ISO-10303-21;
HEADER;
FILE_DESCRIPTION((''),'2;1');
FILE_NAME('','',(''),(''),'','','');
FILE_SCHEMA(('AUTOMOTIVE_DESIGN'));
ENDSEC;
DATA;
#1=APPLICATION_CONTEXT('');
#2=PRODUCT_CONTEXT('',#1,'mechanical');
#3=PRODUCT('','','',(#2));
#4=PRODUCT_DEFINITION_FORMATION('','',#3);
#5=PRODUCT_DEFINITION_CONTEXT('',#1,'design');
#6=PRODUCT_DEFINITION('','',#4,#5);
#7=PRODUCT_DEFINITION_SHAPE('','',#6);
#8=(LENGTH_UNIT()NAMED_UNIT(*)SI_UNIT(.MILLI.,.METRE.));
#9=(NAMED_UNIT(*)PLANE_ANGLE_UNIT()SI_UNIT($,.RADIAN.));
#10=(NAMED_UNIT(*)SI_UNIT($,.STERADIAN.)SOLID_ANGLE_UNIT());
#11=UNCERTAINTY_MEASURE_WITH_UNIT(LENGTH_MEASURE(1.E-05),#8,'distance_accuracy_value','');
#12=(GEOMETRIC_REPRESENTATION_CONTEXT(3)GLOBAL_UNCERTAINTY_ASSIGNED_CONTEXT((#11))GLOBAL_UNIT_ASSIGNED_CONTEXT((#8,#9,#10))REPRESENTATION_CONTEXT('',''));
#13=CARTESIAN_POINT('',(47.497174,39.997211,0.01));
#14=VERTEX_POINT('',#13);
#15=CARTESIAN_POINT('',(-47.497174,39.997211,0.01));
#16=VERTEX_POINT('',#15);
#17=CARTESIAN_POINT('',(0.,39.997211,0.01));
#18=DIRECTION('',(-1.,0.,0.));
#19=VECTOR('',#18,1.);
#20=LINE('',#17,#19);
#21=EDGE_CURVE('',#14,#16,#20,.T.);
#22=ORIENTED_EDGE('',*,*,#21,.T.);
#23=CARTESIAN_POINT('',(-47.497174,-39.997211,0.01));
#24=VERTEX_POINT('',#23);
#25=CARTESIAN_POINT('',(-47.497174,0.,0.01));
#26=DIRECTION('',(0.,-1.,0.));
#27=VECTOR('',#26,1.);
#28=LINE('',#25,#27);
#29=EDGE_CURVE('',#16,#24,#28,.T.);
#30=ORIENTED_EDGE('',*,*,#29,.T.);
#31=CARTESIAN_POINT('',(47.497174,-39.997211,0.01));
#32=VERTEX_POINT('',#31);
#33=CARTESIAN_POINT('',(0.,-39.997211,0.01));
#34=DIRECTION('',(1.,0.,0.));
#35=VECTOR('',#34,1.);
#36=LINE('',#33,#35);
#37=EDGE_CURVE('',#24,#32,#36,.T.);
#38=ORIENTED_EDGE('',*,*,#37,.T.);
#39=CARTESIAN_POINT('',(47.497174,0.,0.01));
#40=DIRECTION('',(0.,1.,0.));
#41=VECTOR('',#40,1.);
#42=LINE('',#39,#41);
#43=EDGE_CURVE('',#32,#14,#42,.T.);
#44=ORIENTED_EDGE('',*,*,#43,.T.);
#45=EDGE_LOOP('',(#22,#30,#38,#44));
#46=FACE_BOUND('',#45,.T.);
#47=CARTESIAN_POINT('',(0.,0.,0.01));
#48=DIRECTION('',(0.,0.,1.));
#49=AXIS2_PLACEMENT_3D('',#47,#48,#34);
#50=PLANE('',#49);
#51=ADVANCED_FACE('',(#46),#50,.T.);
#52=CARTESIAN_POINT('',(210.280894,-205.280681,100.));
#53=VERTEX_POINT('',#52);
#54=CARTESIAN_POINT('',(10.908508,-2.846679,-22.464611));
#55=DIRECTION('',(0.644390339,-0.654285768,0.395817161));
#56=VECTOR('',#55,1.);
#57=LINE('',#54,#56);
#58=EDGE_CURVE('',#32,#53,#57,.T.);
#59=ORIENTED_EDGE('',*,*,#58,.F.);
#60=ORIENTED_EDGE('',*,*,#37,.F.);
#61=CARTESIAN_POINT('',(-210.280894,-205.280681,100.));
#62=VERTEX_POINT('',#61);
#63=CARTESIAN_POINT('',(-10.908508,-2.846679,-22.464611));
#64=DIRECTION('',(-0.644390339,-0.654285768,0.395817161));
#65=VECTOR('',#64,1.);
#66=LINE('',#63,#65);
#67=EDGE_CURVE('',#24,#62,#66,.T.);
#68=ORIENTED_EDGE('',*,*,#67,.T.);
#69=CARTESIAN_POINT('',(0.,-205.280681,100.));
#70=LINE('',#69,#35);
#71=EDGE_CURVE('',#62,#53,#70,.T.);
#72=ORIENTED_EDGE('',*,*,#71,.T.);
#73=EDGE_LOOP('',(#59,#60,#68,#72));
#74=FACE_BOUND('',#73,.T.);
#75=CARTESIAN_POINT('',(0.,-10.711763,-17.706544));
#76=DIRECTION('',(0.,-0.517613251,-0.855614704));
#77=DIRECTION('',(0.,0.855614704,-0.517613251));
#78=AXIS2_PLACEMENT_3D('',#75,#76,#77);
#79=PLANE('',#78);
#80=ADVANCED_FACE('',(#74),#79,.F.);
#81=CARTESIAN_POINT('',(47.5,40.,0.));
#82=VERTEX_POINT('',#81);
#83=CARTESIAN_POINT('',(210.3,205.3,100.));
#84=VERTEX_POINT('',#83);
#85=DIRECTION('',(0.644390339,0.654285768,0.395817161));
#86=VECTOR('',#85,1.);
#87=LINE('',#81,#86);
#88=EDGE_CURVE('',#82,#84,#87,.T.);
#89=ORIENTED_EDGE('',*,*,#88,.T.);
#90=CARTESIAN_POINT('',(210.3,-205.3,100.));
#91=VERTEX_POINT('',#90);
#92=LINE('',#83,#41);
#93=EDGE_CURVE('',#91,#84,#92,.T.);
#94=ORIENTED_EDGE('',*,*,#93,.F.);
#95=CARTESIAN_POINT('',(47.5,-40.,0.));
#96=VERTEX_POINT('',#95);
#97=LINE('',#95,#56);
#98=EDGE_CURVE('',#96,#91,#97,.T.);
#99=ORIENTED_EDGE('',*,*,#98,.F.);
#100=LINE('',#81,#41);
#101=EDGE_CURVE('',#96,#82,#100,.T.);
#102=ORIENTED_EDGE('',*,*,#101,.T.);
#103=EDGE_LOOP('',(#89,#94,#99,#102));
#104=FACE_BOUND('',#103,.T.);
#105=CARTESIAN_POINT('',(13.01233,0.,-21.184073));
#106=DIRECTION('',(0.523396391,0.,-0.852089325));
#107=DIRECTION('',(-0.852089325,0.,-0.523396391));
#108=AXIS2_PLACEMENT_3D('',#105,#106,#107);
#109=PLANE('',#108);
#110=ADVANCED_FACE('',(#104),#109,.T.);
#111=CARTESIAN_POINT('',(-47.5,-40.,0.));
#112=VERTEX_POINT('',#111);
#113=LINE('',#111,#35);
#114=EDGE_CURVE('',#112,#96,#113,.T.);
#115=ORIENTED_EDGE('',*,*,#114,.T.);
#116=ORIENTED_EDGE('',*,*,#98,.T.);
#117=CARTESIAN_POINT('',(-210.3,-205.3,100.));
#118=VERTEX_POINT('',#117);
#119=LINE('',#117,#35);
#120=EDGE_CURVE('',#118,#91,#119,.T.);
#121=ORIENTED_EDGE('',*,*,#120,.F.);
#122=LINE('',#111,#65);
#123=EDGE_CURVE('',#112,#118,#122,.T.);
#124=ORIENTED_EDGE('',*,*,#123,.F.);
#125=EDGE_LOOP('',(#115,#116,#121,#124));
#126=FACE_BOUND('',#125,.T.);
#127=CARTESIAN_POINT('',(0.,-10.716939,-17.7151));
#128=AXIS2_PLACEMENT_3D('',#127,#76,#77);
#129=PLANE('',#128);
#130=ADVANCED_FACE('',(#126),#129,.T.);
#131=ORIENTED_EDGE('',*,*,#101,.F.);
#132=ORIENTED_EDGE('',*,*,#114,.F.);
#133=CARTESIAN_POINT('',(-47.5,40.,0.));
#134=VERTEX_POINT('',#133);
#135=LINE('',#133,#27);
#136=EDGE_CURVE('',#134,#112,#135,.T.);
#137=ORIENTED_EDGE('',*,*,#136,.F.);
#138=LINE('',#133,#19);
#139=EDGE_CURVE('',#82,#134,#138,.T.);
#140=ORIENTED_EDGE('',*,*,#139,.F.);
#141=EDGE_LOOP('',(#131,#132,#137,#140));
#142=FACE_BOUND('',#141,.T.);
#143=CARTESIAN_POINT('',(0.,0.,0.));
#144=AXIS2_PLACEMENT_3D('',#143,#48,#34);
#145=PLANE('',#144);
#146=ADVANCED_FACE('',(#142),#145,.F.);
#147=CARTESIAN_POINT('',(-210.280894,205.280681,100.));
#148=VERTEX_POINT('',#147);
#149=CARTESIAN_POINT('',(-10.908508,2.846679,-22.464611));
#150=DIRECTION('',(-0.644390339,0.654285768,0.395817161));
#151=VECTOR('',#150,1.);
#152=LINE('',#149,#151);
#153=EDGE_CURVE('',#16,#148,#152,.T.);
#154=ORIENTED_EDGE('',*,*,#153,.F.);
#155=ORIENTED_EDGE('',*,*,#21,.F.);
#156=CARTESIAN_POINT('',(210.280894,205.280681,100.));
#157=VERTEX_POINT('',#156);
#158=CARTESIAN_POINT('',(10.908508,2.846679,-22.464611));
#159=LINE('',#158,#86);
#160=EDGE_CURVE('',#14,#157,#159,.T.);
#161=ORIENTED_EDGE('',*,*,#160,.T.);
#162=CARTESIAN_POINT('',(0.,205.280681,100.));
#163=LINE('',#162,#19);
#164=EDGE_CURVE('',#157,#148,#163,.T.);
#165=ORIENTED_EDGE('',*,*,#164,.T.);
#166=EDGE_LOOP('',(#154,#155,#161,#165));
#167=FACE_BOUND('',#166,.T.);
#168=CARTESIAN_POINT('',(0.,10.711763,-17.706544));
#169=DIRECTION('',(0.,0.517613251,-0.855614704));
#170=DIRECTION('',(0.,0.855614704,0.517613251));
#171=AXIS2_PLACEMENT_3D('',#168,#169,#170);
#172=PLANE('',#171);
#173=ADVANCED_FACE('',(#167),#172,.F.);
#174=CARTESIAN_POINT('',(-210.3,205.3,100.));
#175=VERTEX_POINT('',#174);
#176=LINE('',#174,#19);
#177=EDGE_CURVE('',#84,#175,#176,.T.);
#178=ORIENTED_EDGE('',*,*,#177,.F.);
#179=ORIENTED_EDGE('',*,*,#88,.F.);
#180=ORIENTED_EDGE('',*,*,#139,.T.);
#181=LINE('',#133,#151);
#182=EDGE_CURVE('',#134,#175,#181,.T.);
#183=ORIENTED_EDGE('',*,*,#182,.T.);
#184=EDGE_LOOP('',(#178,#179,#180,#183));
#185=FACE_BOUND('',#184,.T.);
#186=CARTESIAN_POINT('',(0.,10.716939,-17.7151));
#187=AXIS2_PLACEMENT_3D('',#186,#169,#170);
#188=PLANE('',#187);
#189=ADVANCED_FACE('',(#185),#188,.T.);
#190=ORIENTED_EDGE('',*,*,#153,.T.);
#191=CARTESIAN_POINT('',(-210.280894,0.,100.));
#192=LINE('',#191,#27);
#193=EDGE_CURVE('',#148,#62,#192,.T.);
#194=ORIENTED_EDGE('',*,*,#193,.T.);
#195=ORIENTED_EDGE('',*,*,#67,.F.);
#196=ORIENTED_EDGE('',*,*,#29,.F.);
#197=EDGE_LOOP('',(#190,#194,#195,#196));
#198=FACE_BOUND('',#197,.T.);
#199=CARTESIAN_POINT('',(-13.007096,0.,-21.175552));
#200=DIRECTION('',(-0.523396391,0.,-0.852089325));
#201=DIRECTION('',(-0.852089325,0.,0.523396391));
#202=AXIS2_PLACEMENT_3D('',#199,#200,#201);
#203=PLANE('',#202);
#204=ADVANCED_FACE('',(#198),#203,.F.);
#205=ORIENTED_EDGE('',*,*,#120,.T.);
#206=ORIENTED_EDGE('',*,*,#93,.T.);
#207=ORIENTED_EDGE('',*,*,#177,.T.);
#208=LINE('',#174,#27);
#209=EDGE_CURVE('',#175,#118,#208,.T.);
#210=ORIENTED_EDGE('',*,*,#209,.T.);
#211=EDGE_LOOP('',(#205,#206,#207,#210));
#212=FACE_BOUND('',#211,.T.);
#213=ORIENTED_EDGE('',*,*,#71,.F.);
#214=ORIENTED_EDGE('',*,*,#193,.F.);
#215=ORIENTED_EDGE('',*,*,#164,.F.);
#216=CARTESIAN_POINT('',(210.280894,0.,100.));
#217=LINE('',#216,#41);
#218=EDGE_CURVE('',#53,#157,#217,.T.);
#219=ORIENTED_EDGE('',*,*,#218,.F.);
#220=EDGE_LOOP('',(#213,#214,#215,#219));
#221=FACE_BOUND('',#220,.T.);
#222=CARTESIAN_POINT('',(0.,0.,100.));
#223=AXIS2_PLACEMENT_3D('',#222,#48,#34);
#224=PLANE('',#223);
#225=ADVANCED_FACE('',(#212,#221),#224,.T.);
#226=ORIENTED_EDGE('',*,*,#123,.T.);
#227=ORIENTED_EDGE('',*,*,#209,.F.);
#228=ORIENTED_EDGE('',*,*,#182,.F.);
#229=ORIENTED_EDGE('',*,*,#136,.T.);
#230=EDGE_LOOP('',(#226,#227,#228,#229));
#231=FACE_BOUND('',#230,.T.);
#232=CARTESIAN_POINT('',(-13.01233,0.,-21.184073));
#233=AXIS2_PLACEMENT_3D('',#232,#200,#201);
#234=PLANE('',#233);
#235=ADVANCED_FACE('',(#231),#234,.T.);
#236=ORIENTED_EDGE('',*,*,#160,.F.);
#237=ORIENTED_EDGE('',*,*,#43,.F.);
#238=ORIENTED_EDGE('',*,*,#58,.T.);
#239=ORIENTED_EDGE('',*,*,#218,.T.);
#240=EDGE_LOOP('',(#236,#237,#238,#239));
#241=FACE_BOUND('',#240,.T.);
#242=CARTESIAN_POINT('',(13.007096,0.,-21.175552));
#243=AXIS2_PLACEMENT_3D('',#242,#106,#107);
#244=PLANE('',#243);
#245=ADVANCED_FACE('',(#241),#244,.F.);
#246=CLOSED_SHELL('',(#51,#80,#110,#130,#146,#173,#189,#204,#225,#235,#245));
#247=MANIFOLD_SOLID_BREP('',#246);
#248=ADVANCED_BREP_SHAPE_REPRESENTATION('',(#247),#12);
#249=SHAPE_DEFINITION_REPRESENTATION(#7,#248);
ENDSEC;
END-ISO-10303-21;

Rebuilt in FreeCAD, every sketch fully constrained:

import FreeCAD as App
import Part
import Sketcher


def faces_at(feature, points):
    """Names of the faces that lie closest to the given points."""
    faces = feature.Shape.Faces
    near = lambda p: min(range(len(faces)), key=lambda i: faces[i].distToShape(Part.Vertex(*p))[0])
    return sorted({f"Face{near(p) + 1}" for p in points})


def add_polygon(sketch, points):
    """Adds a closed chain of lines whose ends are joined by coincident constraints."""
    first, n = sketch.GeometryCount, len(points)
    for a, b in zip(points, points[1:] + points[:1]):
        sketch.addGeometry(Part.LineSegment(App.Vector(*a, 0), App.Vector(*b, 0)), False)
    for i in range(n):
        sketch.addConstraint(Sketcher.Constraint("Coincident", first + i, 2, first + (i + 1) % n, 1))

doc = App.newDocument("Part")
body = doc.addObject("PartDesign::Body", "Body")

# Sketch on XY plane
sketch1 = body.newObject("Sketcher::SketchObject", "Sketch")
sketch1.AttachmentSupport = (doc.getObject("XY_Plane"), [""])
sketch1.MapMode = "FlatFace"
add_polygon(sketch1, [(48, 40), (-48, 40), (-48, -40), (48, -40)])  # lines 0-3
sketch1.addConstraint([
    Sketcher.Constraint("Horizontal", 0),
    Sketcher.Constraint("Vertical", 1),
    Sketcher.Constraint("Horizontal", 2),
    Sketcher.Constraint("Vertical", 3),
    Sketcher.Constraint("Symmetric", 0, 2, 2, 2, -1, 1),
    Sketcher.Constraint("DistanceX", 0, 2, 0, 1, 95.0),
    Sketcher.Constraint("DistanceY", 1, 2, 1, 1, 80.0),
])

# Sketch on XY plane
sketch2 = body.newObject("Sketcher::SketchObject", "Sketch001")
sketch2.AttachmentSupport = (doc.getObject("XY_Plane"), [""])
sketch2.MapMode = "FlatFace"
sketch2.AttachmentOffset = App.Placement(App.Vector(0, 0, 100), App.Rotation())
add_polygon(sketch2, [(210, 205), (-210, 205), (-210, -205), (210, -205)])  # lines 0-3
sketch2.addConstraint([
    Sketcher.Constraint("Horizontal", 0),
    Sketcher.Constraint("Vertical", 1),
    Sketcher.Constraint("Horizontal", 2),
    Sketcher.Constraint("Vertical", 3),
    Sketcher.Constraint("Symmetric", 0, 2, 2, 2, -1, 1),
    Sketcher.Constraint("DistanceX", 0, 2, 0, 1, 420.6),
    Sketcher.Constraint("DistanceY", 1, 2, 1, 1, 410.6),
])

additiveloft = body.newObject("PartDesign::AdditiveLoft", "AdditiveLoft")
additiveloft.Profile = sketch1
additiveloft.Sections = [sketch2]
doc.recompute()

thickness = body.newObject("PartDesign::Thickness", "Thickness")
thickness.Base = (additiveloft, faces_at(additiveloft, [(0, 0, 100)]))
thickness.Value = 0.01
thickness.Reversed = True
thickness.Join = "Arc"

doc.recompute()
